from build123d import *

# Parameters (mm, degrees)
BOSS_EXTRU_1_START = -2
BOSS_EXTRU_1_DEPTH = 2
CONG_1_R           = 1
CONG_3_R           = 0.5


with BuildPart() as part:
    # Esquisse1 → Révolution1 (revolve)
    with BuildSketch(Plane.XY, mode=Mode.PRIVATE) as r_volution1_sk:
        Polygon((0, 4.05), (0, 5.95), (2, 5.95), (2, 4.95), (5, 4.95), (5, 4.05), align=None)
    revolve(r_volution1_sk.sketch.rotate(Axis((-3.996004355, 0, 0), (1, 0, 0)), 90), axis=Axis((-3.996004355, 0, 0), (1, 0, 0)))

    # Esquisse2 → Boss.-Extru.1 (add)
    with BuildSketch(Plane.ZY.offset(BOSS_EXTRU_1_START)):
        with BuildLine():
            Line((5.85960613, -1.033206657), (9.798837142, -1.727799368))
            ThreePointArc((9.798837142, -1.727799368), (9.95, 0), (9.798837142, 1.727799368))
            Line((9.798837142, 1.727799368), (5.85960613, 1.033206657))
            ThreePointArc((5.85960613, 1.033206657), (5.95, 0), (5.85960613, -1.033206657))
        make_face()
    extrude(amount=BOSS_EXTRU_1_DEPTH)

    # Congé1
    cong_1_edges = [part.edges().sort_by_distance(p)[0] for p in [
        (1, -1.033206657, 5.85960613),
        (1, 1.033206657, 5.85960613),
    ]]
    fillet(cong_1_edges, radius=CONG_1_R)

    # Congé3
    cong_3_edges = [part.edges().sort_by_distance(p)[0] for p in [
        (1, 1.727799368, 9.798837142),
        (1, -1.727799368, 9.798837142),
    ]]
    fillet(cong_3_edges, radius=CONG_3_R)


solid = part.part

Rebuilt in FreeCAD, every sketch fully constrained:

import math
import FreeCAD as App
import Part
import Sketcher
from FreeCAD import Vector
Q = App.Units.Quantity


def edges_at(feature, points):
    """Names of the edges that pass closest to the given points."""
    edges = feature.Shape.Edges
    near = lambda p: min(range(len(edges)), key=lambda i: edges[i].distToShape(Part.Vertex(*p))[0])
    return sorted({f"Edge{near(p) + 1}" for p in points})

doc = App.newDocument("Part")
params = doc.addObject("Spreadsheet::Sheet", "Params")
for row, (alias, value) in enumerate([
    ("sketch1_width", "5 mm"),
    ("sketch1_width2", "3 mm"),
    ("sketch1_height", "1 mm"),
    ("sketch1_height2", "1.9 mm"),
    ("revolution_angle", "360 deg"),
    ("sketch2_radius", "9.95 mm"),
    ("sketch2_radius2", "5.95 mm"),
    ("pad1_length", "2 mm"),
    ("fillet_radius", "1 mm"),
    ("fillet2_radius", "0.5 mm"),
], start=1):
    params.set(f"A{row}", alias)
    params.set(f"B{row}", "=" + value)
    params.setAlias(f"B{row}", alias)

body = doc.addObject("PartDesign::Body", "Body")

# Sketch on XY plane
sketch1 = body.newObject("Sketcher::SketchObject", "Sketch")
sketch1.AttachmentSupport = (doc.getObject("XY_Plane"), [""])
sketch1.MapMode = "FlatFace"
sketch1.addGeometry(Part.LineSegment(Vector(0, 5.95, 0), Vector(0, 4.05, 0)), False)
sketch1.addGeometry(Part.LineSegment(Vector(0, 4.05, 0), Vector(5, 4.05, 0)), False)
sketch1.addGeometry(Part.LineSegment(Vector(5, 4.05, 0), Vector(5, 4.95, 0)), False)
sketch1.addGeometry(Part.LineSegment(Vector(5, 4.95, 0), Vector(2, 4.95, 0)), False)
sketch1.addGeometry(Part.LineSegment(Vector(2, 4.95, 0), Vector(2, 5.95, 0)), False)
sketch1.addGeometry(Part.LineSegment(Vector(2, 5.95, 0), Vector(0, 5.95, 0)), False)
sketch1.addConstraint(Sketcher.Constraint("Coincident", 0, 2, 1, 1))
sketch1.addConstraint(Sketcher.Constraint("Coincident", 1, 2, 2, 1))
sketch1.addConstraint(Sketcher.Constraint("Coincident", 2, 2, 3, 1))
sketch1.addConstraint(Sketcher.Constraint("Coincident", 3, 2, 4, 1))
sketch1.addConstraint(Sketcher.Constraint("Coincident", 4, 2, 5, 1))
sketch1.addConstraint(Sketcher.Constraint("Coincident", 5, 2, 0, 1))
sketch1.addConstraint(Sketcher.Constraint("Vertical", 0))
sketch1.addConstraint(Sketcher.Constraint("Horizontal", 1))
sketch1.addConstraint(Sketcher.Constraint("Vertical", 2))
sketch1.addConstraint(Sketcher.Constraint("Horizontal", 3))
sketch1.addConstraint(Sketcher.Constraint("Vertical", 4))
sketch1.addConstraint(Sketcher.Constraint("Horizontal", 5))
sketch1.addConstraint(Sketcher.Constraint("PointOnObject", 0, 2, -2))
sketch1.addConstraint(Sketcher.Constraint("DistanceX", 1, 1, 1, 2, 5.0))
sketch1.addConstraint(Sketcher.Constraint("DistanceX", 3, 2, 3, 1, 3.0))
sketch1.addConstraint(Sketcher.Constraint("DistanceY", 4, 1, 4, 2, 1.0))
sketch1.addConstraint(Sketcher.Constraint("DistanceY", 0, 2, 0, 1, 1.9))
sketch1.addConstraint(Sketcher.Constraint("DistanceY", -1, 1, 0, 2, 4.05))
sketch1.setExpression("Constraints[13]", "Params.sketch1_width")
sketch1.setExpression("Constraints[14]", "Params.sketch1_width2")
sketch1.setExpression("Constraints[15]", "Params.sketch1_height")
sketch1.setExpression("Constraints[16]", "Params.sketch1_height2")
revolution = body.newObject("PartDesign::Revolution", "Revolution")
revolution.Profile = sketch1
revolution.ReferenceAxis = (sketch1, ["H_Axis"])
revolution.setExpression("Angle", "Params.revolution_angle")

# Sketch on YZ plane
sketch2 = body.newObject("Sketcher::SketchObject", "Sketch001")
sketch2.AttachmentSupport = (doc.getObject("YZ_Plane"), [""])
sketch2.MapMode = "FlatFace"
sketch2.AttachmentOffset = App.Placement(Vector(0, 0, 2), App.Rotation())
sketch2.addGeometry(Part.LineSegment(Vector(-1.033207, 5.859606, 0), Vector(-1.727799, 9.798837, 0)), False)
sketch2.addGeometry(Part.ArcOfCircle(Part.Circle(Vector(0, 0, 0), Vector(0, 0, 1), 9.95), math.radians(80), math.radians(100)), False)
sketch2.addGeometry(Part.LineSegment(Vector(1.727799, 9.798837, 0), Vector(1.033207, 5.859606, 0)), False)
sketch2.addGeometry(Part.ArcOfCircle(Part.Circle(Vector(0, 0, 0), Vector(0, 0, 1), 5.95), math.radians(80), math.radians(100)), False)
sketch2.addConstraint(Sketcher.Constraint("Coincident", 0, 2, 1, 2))
sketch2.addConstraint(Sketcher.Constraint("Coincident", 1, 1, 2, 1))
sketch2.addConstraint(Sketcher.Constraint("Coincident", 2, 2, 3, 1))
sketch2.addConstraint(Sketcher.Constraint("Coincident", 3, 2, 0, 1))
sketch2.addConstraint(Sketcher.Constraint("Coincident", 1, 3, -1, 1))
sketch2.addConstraint(Sketcher.Constraint("Coincident", 3, 3, -1, 1))
sketch2.addConstraint(Sketcher.Constraint("Horizontal", 0, 2, 1, 1))
sketch2.addConstraint(Sketcher.Constraint("Horizontal", 2, 2, 3, 2))
sketch2.addConstraint(Sketcher.Constraint("Angle", 0, Q("100 deg")))
sketch2.addConstraint(Sketcher.Constraint("Radius", 1, 9.95))
sketch2.addConstraint(Sketcher.Constraint("Radius", 3, 5.95))
sketch2.addConstraint(Sketcher.Constraint("DistanceX", 0, 2, -1, 1, 1.727799))
sketch2.setExpression("Constraints[9]", "Params.sketch2_radius")
sketch2.setExpression("Constraints[10]", "Params.sketch2_radius2")
pad1 = body.newObject("PartDesign::Pad", "Pad")
pad1.Profile = sketch2
pad1.setExpression("Length", "Params.pad1_length")
pad1.Reversed = True
doc.recompute()

fillet = body.newObject("PartDesign::Fillet", "Fillet")
fillet.Base = (pad1, edges_at(pad1, [(1, -1.033, 5.86), (1, 1.033, 5.86)]))
fillet.setExpression("Radius", "Params.fillet_radius")
doc.recompute()

fillet2 = body.newObject("PartDesign::Fillet", "Fillet001")
fillet2.Base = (fillet, edges_at(fillet, [(1, 1.728, 9.799), (1, -1.728, 9.799)]))
fillet2.setExpression("Radius", "Params.fillet2_radius")

doc.recompute()
